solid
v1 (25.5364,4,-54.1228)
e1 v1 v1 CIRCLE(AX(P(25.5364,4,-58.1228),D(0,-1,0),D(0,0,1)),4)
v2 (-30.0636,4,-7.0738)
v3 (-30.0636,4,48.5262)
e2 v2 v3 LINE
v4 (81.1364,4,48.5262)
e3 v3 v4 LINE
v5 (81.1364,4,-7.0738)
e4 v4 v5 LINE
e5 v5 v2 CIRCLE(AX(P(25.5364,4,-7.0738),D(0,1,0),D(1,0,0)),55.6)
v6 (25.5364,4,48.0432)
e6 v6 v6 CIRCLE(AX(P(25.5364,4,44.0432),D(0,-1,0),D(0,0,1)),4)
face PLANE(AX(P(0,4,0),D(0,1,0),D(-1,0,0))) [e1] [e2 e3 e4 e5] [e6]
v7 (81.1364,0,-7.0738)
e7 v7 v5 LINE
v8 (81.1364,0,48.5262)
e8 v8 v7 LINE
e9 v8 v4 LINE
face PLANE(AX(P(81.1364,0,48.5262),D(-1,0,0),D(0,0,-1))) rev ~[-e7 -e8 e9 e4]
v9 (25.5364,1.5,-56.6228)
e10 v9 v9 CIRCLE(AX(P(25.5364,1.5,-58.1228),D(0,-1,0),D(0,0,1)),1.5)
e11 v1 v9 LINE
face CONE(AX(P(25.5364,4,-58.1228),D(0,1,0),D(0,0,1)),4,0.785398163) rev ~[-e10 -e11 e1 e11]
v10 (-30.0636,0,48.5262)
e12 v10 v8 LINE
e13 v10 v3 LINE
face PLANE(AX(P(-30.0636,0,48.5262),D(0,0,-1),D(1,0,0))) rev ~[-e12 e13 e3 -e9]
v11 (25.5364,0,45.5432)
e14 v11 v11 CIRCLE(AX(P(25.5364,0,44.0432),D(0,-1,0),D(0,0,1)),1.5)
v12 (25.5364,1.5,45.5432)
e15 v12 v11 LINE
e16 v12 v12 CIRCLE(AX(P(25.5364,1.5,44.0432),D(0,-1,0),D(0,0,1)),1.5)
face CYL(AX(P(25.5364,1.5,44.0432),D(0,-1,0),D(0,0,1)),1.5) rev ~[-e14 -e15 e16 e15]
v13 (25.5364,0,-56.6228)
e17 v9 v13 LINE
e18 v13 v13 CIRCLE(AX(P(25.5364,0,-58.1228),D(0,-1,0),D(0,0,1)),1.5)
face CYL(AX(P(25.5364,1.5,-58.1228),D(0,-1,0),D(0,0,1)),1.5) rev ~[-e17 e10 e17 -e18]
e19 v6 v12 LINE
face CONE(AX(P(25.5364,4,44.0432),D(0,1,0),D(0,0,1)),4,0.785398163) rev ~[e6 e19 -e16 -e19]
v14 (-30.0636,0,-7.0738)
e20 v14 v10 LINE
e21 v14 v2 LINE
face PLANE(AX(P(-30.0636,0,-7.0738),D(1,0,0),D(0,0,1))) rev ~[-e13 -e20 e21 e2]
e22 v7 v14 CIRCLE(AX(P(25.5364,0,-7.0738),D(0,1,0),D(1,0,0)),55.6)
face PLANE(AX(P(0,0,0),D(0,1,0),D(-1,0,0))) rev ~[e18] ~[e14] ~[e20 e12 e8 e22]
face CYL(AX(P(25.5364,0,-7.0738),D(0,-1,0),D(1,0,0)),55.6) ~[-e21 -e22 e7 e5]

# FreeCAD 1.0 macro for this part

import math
import FreeCAD as App
import Part
import Sketcher

doc = App.newDocument("Part")
body = doc.addObject("PartDesign::Body", "Body")

sketch1 = body.newObject("Sketcher::SketchObject", "Sketch")
sketch1.AttachmentSupport = (doc.getObject("XZ_Plane"), [""])
sketch1.MapMode = "FlatFace"
sketch1.addGeometry([
    Part.LineSegment(App.Vector(-30, -7, 0), App.Vector(-30, 49, 0)),
    Part.LineSegment(App.Vector(-30, 49, 0), App.Vector(81, 49, 0)),
    Part.LineSegment(App.Vector(81, 49, 0), App.Vector(81, -7, 0)),
    Part.ArcOfCircle(Part.Circle(App.Vector(26, -7, 0), App.Vector(0, 0, 1), 56), math.radians(180), math.radians(360)),
], False)
sketch1.addConstraint([
    Sketcher.Constraint("Coincident", 0, 2, 1, 1),
    Sketcher.Constraint("Coincident", 1, 2, 2, 1),
    Sketcher.Constraint("Tangent", 2, 2, 3, 2),
    Sketcher.Constraint("Tangent", 3, 1, 0, 1),
    Sketcher.Constraint("Vertical", 0),
    Sketcher.Constraint("Horizontal", 1),
    Sketcher.Constraint("Vertical", 2),
    Sketcher.Constraint("Radius", 3, 55.6),
    Sketcher.Constraint("DistanceY", 0, 1, 0, 2, 55.6),
    Sketcher.Constraint("DistanceX", -1, 1, 3, 3, 25.5364),
    Sketcher.Constraint("DistanceY", 3, 3, -1, 1, 7.0738),
])
pad1 = body.newObject("PartDesign::Pad", "Pad")
pad1.Profile = sketch1
pad1.Length = 4
pad1.Reversed = True

sketch2 = body.newObject("Sketcher::SketchObject", "Sketch001")
sketch2.AttachmentSupport = (doc.getObject("XZ_Plane"), [""])
sketch2.MapMode = "FlatFace"
sketch2.AttachmentOffset = App.Placement(App.Vector(0, 0, -4), App.Rotation())
sketch2.addGeometry(Part.Circle(App.Vector(25.5, 44, 0), App.Vector(0, 0, 1), 1.5), False)
sketch2.addConstraint([
    Sketcher.Constraint("Diameter", 0, 3.0),
    Sketcher.Constraint("DistanceX", -1, 1, 0, 3, 25.5364),
    Sketcher.Constraint("DistanceY", -1, 1, 0, 3, 44.0432),
])
doc.recompute()
hole = body.newObject("PartDesign::Hole", "Hole")
hole.Profile = sketch2
hole.ThreadType = "None"
hole.Diameter = 3
hole.DepthType = "Dimension"
hole.Depth = 5
hole.DrillPoint = "Angled"
hole.DrillPointAngle = 118
hole.HoleCutType = "Countersink"
hole.HoleCutDiameter = 8
hole.HoleCutCountersinkAngle = 90
hole.Reversed = True

sketch3 = body.newObject("Sketcher::SketchObject", "Sketch002")
sketch3.AttachmentSupport = (doc.getObject("XZ_Plane"), [""])
sketch3.MapMode = "FlatFace"
sketch3.AttachmentOffset = App.Placement(App.Vector(0, 0, -4), App.Rotation())
sketch3.addGeometry(Part.Circle(App.Vector(25.5, -58.1, 0), App.Vector(0, 0, 1), 1.5), False)
sketch3.addConstraint([
    Sketcher.Constraint("Diameter", 0, 3.0),
    Sketcher.Constraint("DistanceX", -1, 1, 0, 3, 25.5364),
    Sketcher.Constraint("DistanceY", 0, 3, -1, 1, 58.1228),
])
doc.recompute()
hole2 = body.newObject("PartDesign::Hole", "Hole001")
hole2.Profile = sketch3
hole2.ThreadType = "None"
hole2.Diameter = 3
hole2.DepthType = "Dimension"
hole2.Depth = 5
hole2.DrillPoint = "Angled"
hole2.DrillPointAngle = 118
hole2.HoleCutType = "Countersink"
hole2.HoleCutDiameter = 8
hole2.HoleCutCountersinkAngle = 90
hole2.Reversed = True

doc.recompute()
